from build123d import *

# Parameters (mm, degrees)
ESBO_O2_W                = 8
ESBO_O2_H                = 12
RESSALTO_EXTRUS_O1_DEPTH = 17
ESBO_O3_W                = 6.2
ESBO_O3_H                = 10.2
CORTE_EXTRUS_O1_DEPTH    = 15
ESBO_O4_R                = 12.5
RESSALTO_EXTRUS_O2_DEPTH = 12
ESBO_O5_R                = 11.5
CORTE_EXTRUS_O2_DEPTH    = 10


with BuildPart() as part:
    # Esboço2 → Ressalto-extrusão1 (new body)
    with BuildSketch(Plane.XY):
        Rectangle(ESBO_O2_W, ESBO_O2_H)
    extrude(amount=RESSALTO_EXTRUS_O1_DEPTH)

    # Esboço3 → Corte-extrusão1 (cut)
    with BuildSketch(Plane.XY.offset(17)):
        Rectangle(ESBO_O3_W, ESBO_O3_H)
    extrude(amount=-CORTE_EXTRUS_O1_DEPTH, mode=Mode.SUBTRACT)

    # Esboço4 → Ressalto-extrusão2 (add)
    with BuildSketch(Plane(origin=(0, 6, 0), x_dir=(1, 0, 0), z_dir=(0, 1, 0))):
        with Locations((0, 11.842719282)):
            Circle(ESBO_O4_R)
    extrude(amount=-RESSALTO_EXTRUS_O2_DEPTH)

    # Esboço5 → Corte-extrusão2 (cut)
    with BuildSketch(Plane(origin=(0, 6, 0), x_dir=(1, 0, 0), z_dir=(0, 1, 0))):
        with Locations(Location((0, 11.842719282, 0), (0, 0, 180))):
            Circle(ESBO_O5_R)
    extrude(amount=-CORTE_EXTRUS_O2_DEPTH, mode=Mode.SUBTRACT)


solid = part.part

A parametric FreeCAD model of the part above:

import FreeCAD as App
import Part
import Sketcher

doc = App.newDocument("Part")
params = doc.addObject("Spreadsheet::Sheet", "Params")
for row, (alias, value) in enumerate([
    ("sketch1_width", "8 mm"),
    ("sketch1_height", "12 mm"),
    ("pad1_length", "17 mm"),
    ("sketch2_width", "6.2 mm"),
    ("sketch2_height", "10.2 mm"),
    ("pocket1_length", "15 mm"),
    ("sketch3_diameter", "25 mm"),
    ("pad2_length", "12 mm"),
    ("sketch4_diameter", "23 mm"),
    ("pocket2_length", "10 mm"),
], start=1):
    params.set(f"A{row}", alias)
    params.set(f"B{row}", "=" + value)
    params.setAlias(f"B{row}", alias)

body = doc.addObject("PartDesign::Body", "Body")

sketch1 = doc.addObject("Sketcher::SketchObject", "Sketch")
body.addObject(sketch1)
sketch1.AttachmentSupport = (doc.XY_Plane, [""])
sketch1.MapMode = "FlatFace"
sketch1.addGeometry([
    Part.LineSegment(App.Vector(-4, 6, 0), App.Vector(-4, -6, 0)),
    Part.LineSegment(App.Vector(-4, -6, 0), App.Vector(4, -6, 0)),
    Part.LineSegment(App.Vector(4, -6, 0), App.Vector(4, 6, 0)),
    Part.LineSegment(App.Vector(4, 6, 0), App.Vector(-4, 6, 0)),
], False)
sketch1.addConstraint([
    Sketcher.Constraint("Coincident", 0, 2, 1, 1),
    Sketcher.Constraint("Coincident", 1, 2, 2, 1),
    Sketcher.Constraint("Coincident", 2, 2, 3, 1),
    Sketcher.Constraint("Coincident", 3, 2, 0, 1),
    Sketcher.Constraint("Vertical", 0),
    Sketcher.Constraint("Horizontal", 1),
    Sketcher.Constraint("Vertical", 2),
    Sketcher.Constraint("Horizontal", 3),
    Sketcher.Constraint("Symmetric", 0, 2, 2, 2, -1, 1),
    Sketcher.Constraint("DistanceX", 1, 1, 1, 2, 8.0),
    Sketcher.Constraint("DistanceY", 0, 2, 0, 1, 12.0),
])
sketch1.setExpression("Constraints[9]", "Params.sketch1_width")
sketch1.setExpression("Constraints[10]", "Params.sketch1_height")
pad1 = doc.addObject("PartDesign::Pad", "Pad")
body.addObject(pad1)
pad1.Profile = sketch1
pad1.setExpression("Length", "Params.pad1_length")

sketch2 = doc.addObject("Sketcher::SketchObject", "Sketch001")
body.addObject(sketch2)
sketch2.AttachmentSupport = (doc.XY_Plane, [""])
sketch2.MapMode = "FlatFace"
sketch2.AttachmentOffset = App.Placement(App.Vector(0, 0, 17), App.Rotation())
sketch2.addGeometry([
    Part.LineSegment(App.Vector(-3.1, 5.1, 0), App.Vector(-3.1, -5.1, 0)),
    Part.LineSegment(App.Vector(-3.1, -5.1, 0), App.Vector(3.1, -5.1, 0)),
    Part.LineSegment(App.Vector(3.1, -5.1, 0), App.Vector(3.1, 5.1, 0)),
    Part.LineSegment(App.Vector(3.1, 5.1, 0), App.Vector(-3.1, 5.1, 0)),
], False)
sketch2.addConstraint([
    Sketcher.Constraint("Coincident", 0, 2, 1, 1),
    Sketcher.Constraint("Coincident", 1, 2, 2, 1),
    Sketcher.Constraint("Coincident", 2, 2, 3, 1),
    Sketcher.Constraint("Coincident", 3, 2, 0, 1),
    Sketcher.Constraint("Vertical", 0),
    Sketcher.Constraint("Horizontal", 1),
    Sketcher.Constraint("Vertical", 2),
    Sketcher.Constraint("Horizontal", 3),
    Sketcher.Constraint("Symmetric", 0, 2, 2, 2, -1, 1),
    Sketcher.Constraint("DistanceX", 1, 1, 1, 2, 6.2),
    Sketcher.Constraint("DistanceY", 0, 2, 0, 1, 10.2),
])
sketch2.setExpression("Constraints[9]", "Params.sketch2_width")
sketch2.setExpression("Constraints[10]", "Params.sketch2_height")
pocket1 = doc.addObject("PartDesign::Pocket", "Pocket")
body.addObject(pocket1)
pocket1.Profile = sketch2
pocket1.setExpression("Length", "Params.pocket1_length")

sketch3 = doc.addObject("Sketcher::SketchObject", "Sketch002")
body.addObject(sketch3)
sketch3.AttachmentSupport = (doc.XZ_Plane, [""])
sketch3.MapMode = "FlatFace"
sketch3.AttachmentOffset = App.Placement(App.Vector(0, 0, -6), App.Rotation())
sketch3.addGeometry(Part.Circle(App.Vector(0, -11.842719, 0), App.Vector(0, 0, 1), 12.5), False)
sketch3.addConstraint([
    Sketcher.Constraint("PointOnObject", 0, 3, -2),
    Sketcher.Constraint("Diameter", 0, 25.0),
    Sketcher.Constraint("DistanceY", 0, 3, -1, 1, 11.842719),
])
sketch3.setExpression("Constraints[1]", "Params.sketch3_diameter")
pad2 = doc.addObject("PartDesign::Pad", "Pad001")
body.addObject(pad2)
pad2.Profile = sketch3
pad2.setExpression("Length", "Params.pad2_length")

sketch4 = doc.addObject("Sketcher::SketchObject", "Sketch003")
body.addObject(sketch4)
sketch4.AttachmentSupport = (doc.XZ_Plane, [""])
sketch4.MapMode = "FlatFace"
sketch4.AttachmentOffset = App.Placement(App.Vector(0, 0, -6), App.Rotation())
sketch4.addGeometry(Part.Circle(App.Vector(0, -11.842719, 0), App.Vector(0, 0, 1), 11.5), False)
sketch4.addConstraint([
    Sketcher.Constraint("PointOnObject", 0, 3, -2),
    Sketcher.Constraint("Diameter", 0, 23.0),
    Sketcher.Constraint("DistanceY", 0, 3, -1, 1, 11.842719),
])
sketch4.setExpression("Constraints[1]", "Params.sketch4_diameter")
pocket2 = doc.addObject("PartDesign::Pocket", "Pocket001")
body.addObject(pocket2)
pocket2.Profile = sketch4
pocket2.setExpression("Length", "Params.pocket2_length")
pocket2.Reversed = True

doc.recompute()
